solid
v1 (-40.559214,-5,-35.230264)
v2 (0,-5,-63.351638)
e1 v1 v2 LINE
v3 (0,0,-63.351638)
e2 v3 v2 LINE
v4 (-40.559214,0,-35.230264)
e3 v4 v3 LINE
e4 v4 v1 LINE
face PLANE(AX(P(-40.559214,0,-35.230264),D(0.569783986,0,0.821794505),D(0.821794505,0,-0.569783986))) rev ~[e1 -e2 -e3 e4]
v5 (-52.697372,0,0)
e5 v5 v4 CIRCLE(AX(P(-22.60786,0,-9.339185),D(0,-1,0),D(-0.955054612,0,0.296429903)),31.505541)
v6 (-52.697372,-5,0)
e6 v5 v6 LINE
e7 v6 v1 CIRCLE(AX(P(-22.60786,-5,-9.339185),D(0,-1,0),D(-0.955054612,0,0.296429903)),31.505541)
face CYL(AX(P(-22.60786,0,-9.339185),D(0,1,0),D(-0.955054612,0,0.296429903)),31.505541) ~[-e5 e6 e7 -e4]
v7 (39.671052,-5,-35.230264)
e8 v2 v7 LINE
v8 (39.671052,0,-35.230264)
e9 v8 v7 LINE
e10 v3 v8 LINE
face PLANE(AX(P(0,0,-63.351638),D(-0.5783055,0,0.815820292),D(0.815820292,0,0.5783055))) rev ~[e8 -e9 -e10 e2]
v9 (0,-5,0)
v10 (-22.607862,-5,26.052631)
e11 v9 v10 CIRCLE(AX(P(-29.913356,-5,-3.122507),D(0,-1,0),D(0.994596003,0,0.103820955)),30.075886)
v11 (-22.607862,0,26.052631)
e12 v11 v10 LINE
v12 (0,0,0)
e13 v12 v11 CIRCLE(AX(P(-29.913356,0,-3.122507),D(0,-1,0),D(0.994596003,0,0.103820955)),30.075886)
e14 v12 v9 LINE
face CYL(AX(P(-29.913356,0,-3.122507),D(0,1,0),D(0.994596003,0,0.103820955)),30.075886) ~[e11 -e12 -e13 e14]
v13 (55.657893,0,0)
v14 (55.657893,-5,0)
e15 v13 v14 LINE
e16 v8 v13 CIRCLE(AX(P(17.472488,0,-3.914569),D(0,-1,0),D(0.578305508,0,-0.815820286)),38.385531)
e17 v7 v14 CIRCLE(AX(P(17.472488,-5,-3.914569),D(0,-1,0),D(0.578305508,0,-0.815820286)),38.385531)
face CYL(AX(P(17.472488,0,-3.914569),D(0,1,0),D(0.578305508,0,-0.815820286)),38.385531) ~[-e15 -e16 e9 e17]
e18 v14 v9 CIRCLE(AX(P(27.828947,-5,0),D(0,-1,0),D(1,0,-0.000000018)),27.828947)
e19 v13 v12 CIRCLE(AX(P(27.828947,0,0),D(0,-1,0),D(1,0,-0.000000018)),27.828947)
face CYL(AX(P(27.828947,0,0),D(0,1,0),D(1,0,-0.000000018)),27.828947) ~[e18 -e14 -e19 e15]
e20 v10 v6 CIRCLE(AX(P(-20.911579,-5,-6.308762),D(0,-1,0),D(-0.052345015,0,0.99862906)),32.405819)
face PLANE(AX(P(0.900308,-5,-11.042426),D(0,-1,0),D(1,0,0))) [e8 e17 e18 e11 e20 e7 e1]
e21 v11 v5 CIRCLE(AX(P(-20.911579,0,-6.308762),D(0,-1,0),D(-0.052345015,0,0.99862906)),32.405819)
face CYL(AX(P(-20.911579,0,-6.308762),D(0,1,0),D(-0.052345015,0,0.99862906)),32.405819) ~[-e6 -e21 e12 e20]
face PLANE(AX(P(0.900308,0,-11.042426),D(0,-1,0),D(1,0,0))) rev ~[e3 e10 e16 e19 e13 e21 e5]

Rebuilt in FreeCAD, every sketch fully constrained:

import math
import FreeCAD as App
import Part
import Sketcher

V = App.Vector

doc = App.newDocument("Part")
body = doc.addObject("PartDesign::Body", "Body")

sketch1 = body.newObject("Sketcher::SketchObject", "Sketch")
sketch1.AttachmentSupport = (doc.getObject("XZ_Plane"), [""])
sketch1.MapMode = "FlatFace"
sketch1.addGeometry(Part.ArcOfCircle(Part.Circle(V(17.472488, -3.914569, 0), V(0, 0, 1), 38.385531), math.radians(-54.668551), math.radians(5.853218)), False)
sketch1.addGeometry(Part.ArcOfCircle(Part.Circle(V(27.828947, 0, 0), V(0, 0, 1), 27.828947), math.radians(-0.000001), math.radians(180.000001)), False)
sketch1.addGeometry(Part.ArcOfCircle(Part.Circle(V(-29.913356, -3.122507, 0), V(0, 0, 1), 30.075886), math.radians(5.959241), math.radians(75.942115)), False)
sketch1.addGeometry(Part.ArcOfCircle(Part.Circle(V(-20.911579, -6.308762, 0), V(0, 0, 1), 32.405819), math.radians(93.00052), math.radians(168.773975)), False)
sketch1.addGeometry(Part.ArcOfCircle(Part.Circle(V(-22.60786, -9.339185, 0), V(0, 0, 1), 31.505541), math.radians(162.7567), math.radians(235.264833)), False)
sketch1.addGeometry(Part.LineSegment(V(-40.559214, -35.230264, 0), V(0, -63.351638, 0)), False)
sketch1.addGeometry(Part.LineSegment(V(0, -63.351638, 0), V(39.671052, -35.230264, 0)), False)
sketch1.addConstraint(Sketcher.Constraint("Coincident", 0, 2, 1, 1))
sketch1.addConstraint(Sketcher.Constraint("Coincident", 1, 2, 2, 1))
sketch1.addConstraint(Sketcher.Constraint("Coincident", 2, 2, 3, 1))
sketch1.addConstraint(Sketcher.Constraint("Coincident", 3, 2, 4, 1))
sketch1.addConstraint(Sketcher.Constraint("Coincident", 4, 2, 5, 1))
sketch1.addConstraint(Sketcher.Constraint("Coincident", 5, 2, 6, 1))
sketch1.addConstraint(Sketcher.Constraint("Coincident", 6, 2, 0, 1))
sketch1.addConstraint(Sketcher.Constraint("Coincident", 1, 2, -1, 1))
sketch1.addConstraint(Sketcher.Constraint("PointOnObject", 1, 3, -1))
sketch1.addConstraint(Sketcher.Constraint("PointOnObject", 0, 2, -1))
sketch1.addConstraint(Sketcher.Constraint("PointOnObject", 3, 2, -1))
sketch1.addConstraint(Sketcher.Constraint("PointOnObject", 5, 2, -2))
sketch1.addConstraint(Sketcher.Constraint("Radius", 0, 38.385531))
sketch1.addConstraint(Sketcher.Constraint("Radius", 3, 32.405819))
sketch1.addConstraint(Sketcher.Constraint("Radius", 4, 31.505541))
sketch1.addConstraint(Sketcher.Constraint("Radius", 1, 27.828947))
sketch1.addConstraint(Sketcher.Constraint("Radius", 2, 30.075886))
sketch1.addConstraint(Sketcher.Constraint("DistanceY", 0, 3, 2, 2, 29.9672))
sketch1.addConstraint(Sketcher.Constraint("DistanceY", 0, 3, -1, 1, 3.914569))
sketch1.addConstraint(Sketcher.Constraint("DistanceX", 3, 3, -1, 1, 20.911579))
sketch1.addConstraint(Sketcher.Constraint("DistanceY", 3, 3, -1, 1, 6.308762))
sketch1.addConstraint(Sketcher.Constraint("DistanceX", 4, 3, -1, 1, 22.60786))
sketch1.addConstraint(Sketcher.Constraint("DistanceY", 4, 2, 4, 3, 25.891079))
sketch1.addConstraint(Sketcher.Constraint("DistanceY", 5, 2, 0, 3, 59.437069))
sketch1.addConstraint(Sketcher.Constraint("DistanceX", 6, 2, 0, 2, 15.986841))
pad1 = body.newObject("PartDesign::Pad", "Pad")
pad1.Profile = sketch1
pad1.Length = 5

doc.recompute()
